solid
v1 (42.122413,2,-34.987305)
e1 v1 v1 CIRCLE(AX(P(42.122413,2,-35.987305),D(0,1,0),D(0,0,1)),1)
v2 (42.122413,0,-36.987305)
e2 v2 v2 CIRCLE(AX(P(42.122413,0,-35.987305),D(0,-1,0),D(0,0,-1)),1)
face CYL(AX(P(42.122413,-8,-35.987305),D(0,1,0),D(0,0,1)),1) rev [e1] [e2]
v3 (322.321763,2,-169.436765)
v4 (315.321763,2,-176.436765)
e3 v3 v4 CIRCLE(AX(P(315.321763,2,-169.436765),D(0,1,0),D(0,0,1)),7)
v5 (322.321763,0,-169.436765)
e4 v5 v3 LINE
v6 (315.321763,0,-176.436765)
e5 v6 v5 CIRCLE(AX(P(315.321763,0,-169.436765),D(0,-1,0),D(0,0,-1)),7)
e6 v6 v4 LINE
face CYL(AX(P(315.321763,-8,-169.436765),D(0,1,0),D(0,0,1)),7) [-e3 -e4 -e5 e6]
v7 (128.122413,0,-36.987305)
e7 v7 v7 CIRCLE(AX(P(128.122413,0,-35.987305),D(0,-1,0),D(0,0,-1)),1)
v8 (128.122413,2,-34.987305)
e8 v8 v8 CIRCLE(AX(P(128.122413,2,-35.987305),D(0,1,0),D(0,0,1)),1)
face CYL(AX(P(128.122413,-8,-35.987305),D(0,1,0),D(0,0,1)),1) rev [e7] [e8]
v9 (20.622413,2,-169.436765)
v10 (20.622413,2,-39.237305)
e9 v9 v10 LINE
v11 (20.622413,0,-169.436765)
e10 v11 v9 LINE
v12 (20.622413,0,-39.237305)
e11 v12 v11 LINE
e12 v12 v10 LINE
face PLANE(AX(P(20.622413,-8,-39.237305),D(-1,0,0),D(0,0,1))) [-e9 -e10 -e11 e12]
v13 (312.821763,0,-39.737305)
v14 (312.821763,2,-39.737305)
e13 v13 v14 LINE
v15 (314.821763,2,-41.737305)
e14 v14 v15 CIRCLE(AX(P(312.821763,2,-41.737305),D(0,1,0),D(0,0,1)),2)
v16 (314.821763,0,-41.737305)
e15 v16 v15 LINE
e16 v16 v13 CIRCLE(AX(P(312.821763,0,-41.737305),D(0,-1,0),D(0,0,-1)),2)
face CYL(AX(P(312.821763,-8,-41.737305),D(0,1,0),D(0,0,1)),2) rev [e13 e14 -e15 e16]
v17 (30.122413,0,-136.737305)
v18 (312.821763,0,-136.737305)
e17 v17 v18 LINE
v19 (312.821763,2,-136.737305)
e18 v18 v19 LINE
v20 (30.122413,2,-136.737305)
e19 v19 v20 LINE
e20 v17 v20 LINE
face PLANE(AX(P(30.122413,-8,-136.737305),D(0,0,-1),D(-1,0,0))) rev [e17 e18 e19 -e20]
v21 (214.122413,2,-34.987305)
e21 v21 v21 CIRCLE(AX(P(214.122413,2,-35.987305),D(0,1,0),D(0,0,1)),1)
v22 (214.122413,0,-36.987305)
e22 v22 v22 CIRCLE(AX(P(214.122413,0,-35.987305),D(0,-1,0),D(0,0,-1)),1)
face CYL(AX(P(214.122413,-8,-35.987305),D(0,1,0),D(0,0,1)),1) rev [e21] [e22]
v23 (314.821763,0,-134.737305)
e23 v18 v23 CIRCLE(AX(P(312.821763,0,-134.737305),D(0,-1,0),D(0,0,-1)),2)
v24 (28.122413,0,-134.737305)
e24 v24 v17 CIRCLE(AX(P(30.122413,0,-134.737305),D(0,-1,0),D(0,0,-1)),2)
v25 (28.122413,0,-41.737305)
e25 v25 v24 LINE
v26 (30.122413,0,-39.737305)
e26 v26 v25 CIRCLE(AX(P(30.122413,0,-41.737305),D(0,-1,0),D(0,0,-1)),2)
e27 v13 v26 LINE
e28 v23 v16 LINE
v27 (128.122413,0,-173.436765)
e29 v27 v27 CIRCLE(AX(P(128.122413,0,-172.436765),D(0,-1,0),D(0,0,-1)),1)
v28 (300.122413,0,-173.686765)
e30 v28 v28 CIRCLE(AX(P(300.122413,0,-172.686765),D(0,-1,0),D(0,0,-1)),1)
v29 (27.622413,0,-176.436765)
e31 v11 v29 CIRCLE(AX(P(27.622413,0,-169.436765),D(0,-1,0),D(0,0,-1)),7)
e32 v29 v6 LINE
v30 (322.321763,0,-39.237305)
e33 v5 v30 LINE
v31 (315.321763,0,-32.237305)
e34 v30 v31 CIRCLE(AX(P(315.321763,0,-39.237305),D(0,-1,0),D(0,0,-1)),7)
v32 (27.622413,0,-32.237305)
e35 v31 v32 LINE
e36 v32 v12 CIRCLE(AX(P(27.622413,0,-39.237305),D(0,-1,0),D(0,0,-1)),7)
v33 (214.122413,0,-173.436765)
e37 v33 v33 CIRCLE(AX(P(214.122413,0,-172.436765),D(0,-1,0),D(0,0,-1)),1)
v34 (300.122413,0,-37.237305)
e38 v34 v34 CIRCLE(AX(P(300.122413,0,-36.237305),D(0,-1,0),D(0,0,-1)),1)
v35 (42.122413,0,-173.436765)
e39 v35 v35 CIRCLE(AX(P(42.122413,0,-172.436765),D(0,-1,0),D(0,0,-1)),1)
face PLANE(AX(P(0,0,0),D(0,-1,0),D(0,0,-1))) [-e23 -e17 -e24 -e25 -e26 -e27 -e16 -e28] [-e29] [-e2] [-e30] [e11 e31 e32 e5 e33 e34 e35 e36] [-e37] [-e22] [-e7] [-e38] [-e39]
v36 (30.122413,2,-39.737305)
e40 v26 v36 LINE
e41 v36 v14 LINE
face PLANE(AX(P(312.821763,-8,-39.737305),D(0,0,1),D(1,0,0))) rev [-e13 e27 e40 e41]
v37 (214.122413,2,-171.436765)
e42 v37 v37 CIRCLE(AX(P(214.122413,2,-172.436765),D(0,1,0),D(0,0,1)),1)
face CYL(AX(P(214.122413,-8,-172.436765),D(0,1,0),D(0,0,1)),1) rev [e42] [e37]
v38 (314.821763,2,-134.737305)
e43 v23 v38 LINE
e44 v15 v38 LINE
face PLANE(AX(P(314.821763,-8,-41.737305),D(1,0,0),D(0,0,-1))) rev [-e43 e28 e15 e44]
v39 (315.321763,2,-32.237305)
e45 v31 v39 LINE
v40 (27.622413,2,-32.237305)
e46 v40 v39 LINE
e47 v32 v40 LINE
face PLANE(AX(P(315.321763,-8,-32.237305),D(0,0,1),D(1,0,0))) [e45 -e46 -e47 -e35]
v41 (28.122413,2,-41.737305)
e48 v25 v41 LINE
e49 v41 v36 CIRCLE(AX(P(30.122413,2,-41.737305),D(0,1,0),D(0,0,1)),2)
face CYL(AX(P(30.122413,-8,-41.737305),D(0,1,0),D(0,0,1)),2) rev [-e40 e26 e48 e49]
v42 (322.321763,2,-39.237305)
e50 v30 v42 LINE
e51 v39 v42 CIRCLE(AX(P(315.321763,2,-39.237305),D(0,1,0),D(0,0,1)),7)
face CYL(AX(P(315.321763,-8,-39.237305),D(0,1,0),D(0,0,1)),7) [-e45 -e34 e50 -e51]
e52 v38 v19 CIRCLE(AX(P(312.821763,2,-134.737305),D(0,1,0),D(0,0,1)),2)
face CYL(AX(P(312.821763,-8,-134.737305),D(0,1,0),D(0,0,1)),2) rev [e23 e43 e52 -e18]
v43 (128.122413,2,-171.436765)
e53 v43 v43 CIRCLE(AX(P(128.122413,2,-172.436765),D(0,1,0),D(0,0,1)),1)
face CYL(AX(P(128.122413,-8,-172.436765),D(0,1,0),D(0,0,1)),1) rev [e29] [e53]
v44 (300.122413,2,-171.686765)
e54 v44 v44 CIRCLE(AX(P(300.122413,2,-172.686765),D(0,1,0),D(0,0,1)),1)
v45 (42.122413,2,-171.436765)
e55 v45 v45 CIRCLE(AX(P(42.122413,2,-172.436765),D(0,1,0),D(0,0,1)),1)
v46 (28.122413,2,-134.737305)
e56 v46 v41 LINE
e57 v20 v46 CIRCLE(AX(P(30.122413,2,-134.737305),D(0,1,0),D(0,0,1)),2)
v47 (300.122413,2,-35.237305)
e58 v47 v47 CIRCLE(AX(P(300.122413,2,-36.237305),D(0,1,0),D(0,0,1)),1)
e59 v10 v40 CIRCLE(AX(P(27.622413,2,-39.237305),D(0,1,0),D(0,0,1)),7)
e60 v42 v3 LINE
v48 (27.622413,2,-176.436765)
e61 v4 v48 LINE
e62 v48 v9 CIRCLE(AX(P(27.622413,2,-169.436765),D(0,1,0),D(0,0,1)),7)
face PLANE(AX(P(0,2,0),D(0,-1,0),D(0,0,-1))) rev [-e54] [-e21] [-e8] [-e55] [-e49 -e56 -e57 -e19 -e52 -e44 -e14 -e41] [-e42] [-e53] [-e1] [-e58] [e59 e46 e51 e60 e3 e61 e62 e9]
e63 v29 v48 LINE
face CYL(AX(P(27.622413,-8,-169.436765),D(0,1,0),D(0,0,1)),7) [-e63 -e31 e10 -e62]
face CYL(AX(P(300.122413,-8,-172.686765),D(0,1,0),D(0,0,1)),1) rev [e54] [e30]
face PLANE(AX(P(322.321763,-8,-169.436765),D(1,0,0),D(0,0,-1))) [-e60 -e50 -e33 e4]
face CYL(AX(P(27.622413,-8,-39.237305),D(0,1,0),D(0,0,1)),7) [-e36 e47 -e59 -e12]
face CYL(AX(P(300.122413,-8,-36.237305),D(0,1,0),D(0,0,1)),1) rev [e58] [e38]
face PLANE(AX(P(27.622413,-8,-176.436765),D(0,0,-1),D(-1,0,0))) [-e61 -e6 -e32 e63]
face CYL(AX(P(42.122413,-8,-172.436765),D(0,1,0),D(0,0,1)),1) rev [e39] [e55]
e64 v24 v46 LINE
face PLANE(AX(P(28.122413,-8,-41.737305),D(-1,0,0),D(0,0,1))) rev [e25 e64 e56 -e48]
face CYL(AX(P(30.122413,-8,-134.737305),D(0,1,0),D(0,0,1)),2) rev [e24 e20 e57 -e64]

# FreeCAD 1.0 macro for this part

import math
import FreeCAD as App
import Part
import Sketcher

V = App.Vector
Q = App.Units.Quantity

doc = App.newDocument("Part")
params = doc.addObject("Spreadsheet::Sheet", "Params")
for row, (alias, value) in enumerate([
    ("sketch1_width", "350 mm"),
    ("sketch1_height", "250 mm"),
    ("pad1_length", "2 mm"),
    ("sketch2_diameter", "2 mm"),
    ("sketch2_radius", "7 mm"),
    ("sketch2_radius2", "2 mm"),
    ("sketch2_height", "93 mm"),
    ("pocket1_length", "10 mm"),
], start=1):
    params.set(f"A{row}", alias)
    params.set(f"B{row}", "=" + value)
    params.setAlias(f"B{row}", alias)

body = doc.addObject("PartDesign::Body", "Body")

# Sketch on XZ plane
sketch1 = body.newObject("Sketcher::SketchObject", "Sketch")
sketch1.AttachmentSupport = (doc.getObject("XZ_Plane"), [""])
sketch1.MapMode = "FlatFace"
sketch1.addGeometry([
    Part.LineSegment(V(0, -250, 0), V(0, 0, 0)),
    Part.LineSegment(V(0, 0, 0), V(350, 0, 0)),
    Part.LineSegment(V(350, 0, 0), V(350, -250, 0)),
    Part.LineSegment(V(350, -250, 0), V(0, -250, 0)),
], False)
sketch1.addConstraint([
    Sketcher.Constraint("Coincident", 0, 2, 1, 1),
    Sketcher.Constraint("Coincident", 1, 2, 2, 1),
    Sketcher.Constraint("Coincident", 2, 2, 3, 1),
    Sketcher.Constraint("Coincident", 3, 2, 0, 1),
    Sketcher.Constraint("Vertical", 0),
    Sketcher.Constraint("Horizontal", 1),
    Sketcher.Constraint("Vertical", 2),
    Sketcher.Constraint("Horizontal", 3),
    Sketcher.Constraint("Coincident", 0, 2, -1, 1),
    Sketcher.Constraint("DistanceX", 1, 1, 1, 2, Q("350 mm")),
    Sketcher.Constraint("DistanceY", 0, 1, 0, 2, Q("250 mm")),
])
sketch1.setExpression("Constraints[9]", "Params.sketch1_width")
sketch1.setExpression("Constraints[10]", "Params.sketch1_height")
pad1 = body.newObject("PartDesign::Pad", "Pad")
pad1.Profile = sketch1
pad1.setExpression("Length", "Params.pad1_length")
pad1.Reversed = True

# Sketch on XZ plane
sketch2 = body.newObject("Sketcher::SketchObject", "Sketch001")
sketch2.AttachmentSupport = (doc.getObject("XZ_Plane"), [""])
sketch2.MapMode = "FlatFace"
sketch2.AttachmentOffset = App.Placement(V(0, 0, -2), App.Rotation())
sketch2.addGeometry([
    Part.LineSegment(V(-44, -294, 0), V(-44, 44, 0)),  # 0
    Part.LineSegment(V(-44, 44, 0), V(394, 44, 0)),  # 1
    Part.LineSegment(V(394, 44, 0), V(394, -294, 0)),  # 2
    Part.LineSegment(V(394, -294, 0), V(-44, -294, 0)),  # 3
    Part.ArcOfCircle(Part.Circle(V(27.6, -39.2, 0), V(0, 0, 1), 7), math.radians(90), math.radians(180)),  # 4
    Part.LineSegment(V(20.6, -39.2, 0), V(20.6, -169.4, 0)),  # 5
    Part.ArcOfCircle(Part.Circle(V(27.6, -169.4, 0), V(0, 0, 1), 7), math.radians(180), math.radians(270)),  # 6
    Part.LineSegment(V(27.6, -176.4, 0), V(315.3, -176.4, 0)),  # 7
    Part.ArcOfCircle(Part.Circle(V(315.3, -169.4, 0), V(0, 0, 1), 7), math.radians(-90), math.radians(0)),  # 8
    Part.LineSegment(V(322.3, -169.4, 0), V(322.3, -39.2, 0)),  # 9
    Part.ArcOfCircle(Part.Circle(V(315.3, -39.2, 0), V(0, 0, 1), 7), math.radians(0), math.radians(90)),  # 10
    Part.LineSegment(V(315.3, -32.2, 0), V(27.6, -32.2, 0)),  # 11
    Part.Circle(V(42.1, -172.4, 0), V(0, 0, 1), 1),  # 12
    Part.Circle(V(128.1, -172.4, 0), V(0, 0, 1), 1),  # 13
    Part.Circle(V(214.1, -172.4, 0), V(0, 0, 1), 1),  # 14
    Part.Circle(V(300.1, -172.7, 0), V(0, 0, 1), 1),  # 15
    Part.Circle(V(300.1, -36.2, 0), V(0, 0, 1), 1),  # 16
    Part.Circle(V(214.1, -36, 0), V(0, 0, 1), 1),  # 17
    Part.Circle(V(128.1, -36, 0), V(0, 0, 1), 1),  # 18
    Part.Circle(V(42.1, -36, 0), V(0, 0, 1), 1),  # 19
    Part.LineSegment(V(30.1, -39.7, 0), V(312.8, -39.7, 0)),  # 20
    Part.ArcOfCircle(Part.Circle(V(312.8, -41.7, 0), V(0, 0, 1), 2), math.radians(0), math.radians(90)),  # 21
    Part.LineSegment(V(314.8, -41.7, 0), V(314.8, -134.7, 0)),  # 22
    Part.ArcOfCircle(Part.Circle(V(312.8, -134.7, 0), V(0, 0, 1), 2), math.radians(-90), math.radians(0)),  # 23
    Part.LineSegment(V(312.8, -136.7, 0), V(30.1, -136.7, 0)),  # 24
    Part.ArcOfCircle(Part.Circle(V(30.1, -134.7, 0), V(0, 0, 1), 2), math.radians(180), math.radians(270)),  # 25
    Part.LineSegment(V(28.1, -134.7, 0), V(28.1, -41.7, 0)),  # 26
    Part.ArcOfCircle(Part.Circle(V(30.1, -41.7, 0), V(0, 0, 1), 2), math.radians(90), math.radians(180)),  # 27
], False)
sketch2.addConstraint([
    Sketcher.Constraint("Coincident", 0, 2, 1, 1),
    Sketcher.Constraint("Coincident", 1, 2, 2, 1),
    Sketcher.Constraint("Coincident", 2, 2, 3, 1),
    Sketcher.Constraint("Coincident", 3, 2, 0, 1),
    Sketcher.Constraint("Tangent", 4, 2, 5, 1),
    Sketcher.Constraint("Tangent", 5, 2, 6, 1),
    Sketcher.Constraint("Tangent", 6, 2, 7, 1),
    Sketcher.Constraint("Tangent", 7, 2, 8, 1),
    Sketcher.Constraint("Tangent", 8, 2, 9, 1),
    Sketcher.Constraint("Tangent", 9, 2, 10, 1),
    Sketcher.Constraint("Tangent", 10, 2, 11, 1),
    Sketcher.Constraint("Tangent", 11, 2, 4, 1),
    Sketcher.Constraint("Tangent", 20, 2, 21, 2),
    Sketcher.Constraint("Tangent", 21, 1, 22, 1),
    Sketcher.Constraint("Tangent", 22, 2, 23, 2),
    Sketcher.Constraint("Tangent", 23, 1, 24, 1),
    Sketcher.Constraint("Tangent", 24, 2, 25, 2),
    Sketcher.Constraint("Tangent", 25, 1, 26, 1),
    Sketcher.Constraint("Tangent", 26, 2, 27, 2),
    Sketcher.Constraint("Tangent", 27, 1, 20, 1),
    Sketcher.Constraint("Vertical", 0),
    Sketcher.Constraint("Horizontal", 1),
    Sketcher.Constraint("Vertical", 2),
    Sketcher.Constraint("Horizontal", 3),
    Sketcher.Constraint("Vertical", 5),
    Sketcher.Constraint("Horizontal", 7),
    Sketcher.Constraint("Vertical", 9),
    Sketcher.Constraint("Horizontal", 11),
    Sketcher.Constraint("Horizontal", 20),
    Sketcher.Constraint("Vertical", 22),
    Sketcher.Constraint("Horizontal", 24),
    Sketcher.Constraint("Vertical", 26),
    Sketcher.Constraint("Equal", 4, 6),
    Sketcher.Constraint("Equal", 6, 8),
    Sketcher.Constraint("Equal", 8, 10),
    Sketcher.Constraint("Equal", 12, 13),
    Sketcher.Constraint("Equal", 13, 14),
    Sketcher.Constraint("Equal", 14, 15),
    Sketcher.Constraint("Equal", 15, 16),
    Sketcher.Constraint("Equal", 16, 17),
    Sketcher.Constraint("Equal", 17, 18),
    Sketcher.Constraint("Equal", 18, 19),
    Sketcher.Constraint("Equal", 21, 23),
    Sketcher.Constraint("Equal", 23, 25),
    Sketcher.Constraint("Equal", 25, 27),
    Sketcher.Constraint("Horizontal", 12, 3, 13, 3),
    Sketcher.Constraint("Horizontal", 13, 3, 14, 3),
    Sketcher.Constraint("Horizontal", 17, 3, 18, 3),
    Sketcher.Constraint("Horizontal", 18, 3, 19, 3),
    Sketcher.Constraint("Vertical", 15, 3, 16, 3),
    Sketcher.Constraint("Vertical", 14, 3, 17, 3),
    Sketcher.Constraint("Vertical", 13, 3, 18, 3),
    Sketcher.Constraint("Vertical", 12, 3, 19, 3),
    Sketcher.Constraint("Diameter", 12, Q("2 mm")),
    Sketcher.Constraint("Radius", 4, Q("7 mm")),
    Sketcher.Constraint("Radius", 21, Q("2 mm")),
    Sketcher.Constraint("DistanceY", 22, 2, 22, 1, Q("93 mm")),
    Sketcher.Constraint("DistanceY", 12, 3, 6, 3, Q("3 mm")),
    Sketcher.Constraint("DistanceX", 12, 3, 13, 3, Q("86 mm")),
    Sketcher.Constraint("DistanceX", 13, 3, 14, 3, Q("86 mm")),
    Sketcher.Constraint("DistanceX", 14, 3, 15, 3, Q("86 mm")),
    Sketcher.Constraint("DistanceY", 10, 3, 16, 3, Q("3 mm")),
    Sketcher.Constraint("DistanceX", 25, 3, 12, 3, Q("12 mm")),
    Sketcher.Constraint("DistanceX", 6, 3, 12, 3, Q("14.5 mm")),
    Sketcher.Constraint("DistanceX", 21, 3, 10, 3, Q("2.5 mm")),
    Sketcher.Constraint("DistanceY", 21, 3, 10, 3, Q("2.5 mm")),
    Sketcher.Constraint("DistanceX", 1, 1, 1, 2, Q("438.024 mm")),
    Sketcher.Constraint("DistanceY", 0, 1, 0, 2, Q("338.024 mm")),
    Sketcher.Constraint("DistanceY", 15, 3, 8, 3, Q("3.25 mm")),
    Sketcher.Constraint("DistanceY", 16, 3, 17, 3, Q("0.25 mm")),
    Sketcher.Constraint("DistanceX", 0, 2, -1, 1, Q("44.012 mm")),
    Sketcher.Constraint("DistanceY", -1, 1, 0, 2, Q("44.012 mm")),
    Sketcher.Constraint("DistanceX", 7, 1, 7, 2, Q("287.69935 mm")),
    Sketcher.Constraint("DistanceY", 5, 2, 5, 1, Q("130.19946 mm")),
    Sketcher.Constraint("DistanceX", -1, 1, 4, 3, Q("27.622413 mm")),
    Sketcher.Constraint("DistanceY", 4, 3, -1, 1, Q("39.237305 mm")),
])
sketch2.setExpression("Constraints[53]", "Params.sketch2_diameter")
sketch2.setExpression("Constraints[54]", "Params.sketch2_radius")
sketch2.setExpression("Constraints[55]", "Params.sketch2_radius2")
sketch2.setExpression("Constraints[56]", "Params.sketch2_height")
pocket1 = body.newObject("PartDesign::Pocket", "Pocket")
pocket1.Profile = sketch2
pocket1.setExpression("Length", "Params.pocket1_length")
pocket1.Reversed = True

doc.recompute()
